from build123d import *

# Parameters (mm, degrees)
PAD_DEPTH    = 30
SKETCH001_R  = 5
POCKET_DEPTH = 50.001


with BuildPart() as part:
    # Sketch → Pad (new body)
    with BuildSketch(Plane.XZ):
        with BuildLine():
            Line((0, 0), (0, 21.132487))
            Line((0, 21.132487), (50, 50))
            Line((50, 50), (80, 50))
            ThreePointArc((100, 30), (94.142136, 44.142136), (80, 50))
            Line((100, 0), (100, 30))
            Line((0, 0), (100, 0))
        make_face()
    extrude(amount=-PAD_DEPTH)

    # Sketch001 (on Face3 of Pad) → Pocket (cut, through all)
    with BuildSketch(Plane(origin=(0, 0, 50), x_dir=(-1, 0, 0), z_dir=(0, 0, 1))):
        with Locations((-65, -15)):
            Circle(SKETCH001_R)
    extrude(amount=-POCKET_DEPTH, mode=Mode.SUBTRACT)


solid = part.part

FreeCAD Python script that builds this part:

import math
import FreeCAD as App
import Part
import Sketcher
Q = App.Units.Quantity

doc = App.newDocument("Part")
body = doc.addObject("PartDesign::Body", "Body")

# Sketch on XZ plane
sketch1 = body.newObject("Sketcher::SketchObject", "Sketch")
sketch1.AttachmentSupport = (doc.getObject("XZ_Plane"), [""])
sketch1.MapMode = "FlatFace"
sketch1.addGeometry(Part.LineSegment(App.Vector(0, 21, 0), App.Vector(0, 0, 0)), False)
sketch1.addGeometry(Part.LineSegment(App.Vector(0, 0, 0), App.Vector(100, 0, 0)), False)
sketch1.addGeometry(Part.LineSegment(App.Vector(100, 0, 0), App.Vector(100, 30, 0)), False)
sketch1.addGeometry(Part.ArcOfCircle(Part.Circle(App.Vector(80, 30, 0), App.Vector(0, 0, 1), 20), math.radians(0), math.radians(90)), False)
sketch1.addGeometry(Part.LineSegment(App.Vector(80, 50, 0), App.Vector(50, 50, 0)), False)
sketch1.addGeometry(Part.LineSegment(App.Vector(50, 50, 0), App.Vector(0, 21, 0)), False)
sketch1.addConstraint(Sketcher.Constraint("Coincident", 0, 2, 1, 1))
sketch1.addConstraint(Sketcher.Constraint("Coincident", 1, 2, 2, 1))
sketch1.addConstraint(Sketcher.Constraint("Tangent", 2, 2, 3, 1))
sketch1.addConstraint(Sketcher.Constraint("Tangent", 3, 2, 4, 1))
sketch1.addConstraint(Sketcher.Constraint("Coincident", 4, 2, 5, 1))
sketch1.addConstraint(Sketcher.Constraint("Coincident", 5, 2, 0, 1))
sketch1.addConstraint(Sketcher.Constraint("Vertical", 0))
sketch1.addConstraint(Sketcher.Constraint("Horizontal", 1))
sketch1.addConstraint(Sketcher.Constraint("Vertical", 2))
sketch1.addConstraint(Sketcher.Constraint("Horizontal", 4))
sketch1.addConstraint(Sketcher.Constraint("Coincident", 0, 2, -1, 1))
sketch1.addConstraint(Sketcher.Constraint("Equal", 4, 2))
sketch1.addConstraint(Sketcher.Constraint("Radius", 3, Q("19.999999 mm")))
sketch1.addConstraint(Sketcher.Constraint("DistanceX", 1, 1, 1, 2, Q("100 mm")))
sketch1.addConstraint(Sketcher.Constraint("DistanceX", 4, 2, 4, 1, Q("30 mm")))
sketch1.addConstraint(Sketcher.Constraint("Angle", 5, Q("-150 deg")))
pad1 = body.newObject("PartDesign::Pad", "Pad")
pad1.Profile = sketch1
pad1.Length = 30
pad1.Reversed = True

# Sketch on XY plane
sketch2 = body.newObject("Sketcher::SketchObject", "Sketch001")
sketch2.AttachmentSupport = (doc.getObject("XY_Plane"), [""])
sketch2.MapMode = "FlatFace"
sketch2.AttachmentOffset = App.Placement(App.Vector(0, 0, 50), App.Rotation())
sketch2.addGeometry(Part.Circle(App.Vector(65, 15, 0), App.Vector(0, 0, 1), 5), False)
sketch2.addConstraint(Sketcher.Constraint("Diameter", 0, Q("10 mm")))
sketch2.addConstraint(Sketcher.Constraint("DistanceX", -1, 1, 0, 3, Q("65 mm")))
sketch2.addConstraint(Sketcher.Constraint("DistanceY", -1, 1, 0, 3, Q("15 mm")))
pocket1 = body.newObject("PartDesign::Pocket", "Pocket")
pocket1.Profile = sketch2
pocket1.Type = "ThroughAll"

doc.recompute()
